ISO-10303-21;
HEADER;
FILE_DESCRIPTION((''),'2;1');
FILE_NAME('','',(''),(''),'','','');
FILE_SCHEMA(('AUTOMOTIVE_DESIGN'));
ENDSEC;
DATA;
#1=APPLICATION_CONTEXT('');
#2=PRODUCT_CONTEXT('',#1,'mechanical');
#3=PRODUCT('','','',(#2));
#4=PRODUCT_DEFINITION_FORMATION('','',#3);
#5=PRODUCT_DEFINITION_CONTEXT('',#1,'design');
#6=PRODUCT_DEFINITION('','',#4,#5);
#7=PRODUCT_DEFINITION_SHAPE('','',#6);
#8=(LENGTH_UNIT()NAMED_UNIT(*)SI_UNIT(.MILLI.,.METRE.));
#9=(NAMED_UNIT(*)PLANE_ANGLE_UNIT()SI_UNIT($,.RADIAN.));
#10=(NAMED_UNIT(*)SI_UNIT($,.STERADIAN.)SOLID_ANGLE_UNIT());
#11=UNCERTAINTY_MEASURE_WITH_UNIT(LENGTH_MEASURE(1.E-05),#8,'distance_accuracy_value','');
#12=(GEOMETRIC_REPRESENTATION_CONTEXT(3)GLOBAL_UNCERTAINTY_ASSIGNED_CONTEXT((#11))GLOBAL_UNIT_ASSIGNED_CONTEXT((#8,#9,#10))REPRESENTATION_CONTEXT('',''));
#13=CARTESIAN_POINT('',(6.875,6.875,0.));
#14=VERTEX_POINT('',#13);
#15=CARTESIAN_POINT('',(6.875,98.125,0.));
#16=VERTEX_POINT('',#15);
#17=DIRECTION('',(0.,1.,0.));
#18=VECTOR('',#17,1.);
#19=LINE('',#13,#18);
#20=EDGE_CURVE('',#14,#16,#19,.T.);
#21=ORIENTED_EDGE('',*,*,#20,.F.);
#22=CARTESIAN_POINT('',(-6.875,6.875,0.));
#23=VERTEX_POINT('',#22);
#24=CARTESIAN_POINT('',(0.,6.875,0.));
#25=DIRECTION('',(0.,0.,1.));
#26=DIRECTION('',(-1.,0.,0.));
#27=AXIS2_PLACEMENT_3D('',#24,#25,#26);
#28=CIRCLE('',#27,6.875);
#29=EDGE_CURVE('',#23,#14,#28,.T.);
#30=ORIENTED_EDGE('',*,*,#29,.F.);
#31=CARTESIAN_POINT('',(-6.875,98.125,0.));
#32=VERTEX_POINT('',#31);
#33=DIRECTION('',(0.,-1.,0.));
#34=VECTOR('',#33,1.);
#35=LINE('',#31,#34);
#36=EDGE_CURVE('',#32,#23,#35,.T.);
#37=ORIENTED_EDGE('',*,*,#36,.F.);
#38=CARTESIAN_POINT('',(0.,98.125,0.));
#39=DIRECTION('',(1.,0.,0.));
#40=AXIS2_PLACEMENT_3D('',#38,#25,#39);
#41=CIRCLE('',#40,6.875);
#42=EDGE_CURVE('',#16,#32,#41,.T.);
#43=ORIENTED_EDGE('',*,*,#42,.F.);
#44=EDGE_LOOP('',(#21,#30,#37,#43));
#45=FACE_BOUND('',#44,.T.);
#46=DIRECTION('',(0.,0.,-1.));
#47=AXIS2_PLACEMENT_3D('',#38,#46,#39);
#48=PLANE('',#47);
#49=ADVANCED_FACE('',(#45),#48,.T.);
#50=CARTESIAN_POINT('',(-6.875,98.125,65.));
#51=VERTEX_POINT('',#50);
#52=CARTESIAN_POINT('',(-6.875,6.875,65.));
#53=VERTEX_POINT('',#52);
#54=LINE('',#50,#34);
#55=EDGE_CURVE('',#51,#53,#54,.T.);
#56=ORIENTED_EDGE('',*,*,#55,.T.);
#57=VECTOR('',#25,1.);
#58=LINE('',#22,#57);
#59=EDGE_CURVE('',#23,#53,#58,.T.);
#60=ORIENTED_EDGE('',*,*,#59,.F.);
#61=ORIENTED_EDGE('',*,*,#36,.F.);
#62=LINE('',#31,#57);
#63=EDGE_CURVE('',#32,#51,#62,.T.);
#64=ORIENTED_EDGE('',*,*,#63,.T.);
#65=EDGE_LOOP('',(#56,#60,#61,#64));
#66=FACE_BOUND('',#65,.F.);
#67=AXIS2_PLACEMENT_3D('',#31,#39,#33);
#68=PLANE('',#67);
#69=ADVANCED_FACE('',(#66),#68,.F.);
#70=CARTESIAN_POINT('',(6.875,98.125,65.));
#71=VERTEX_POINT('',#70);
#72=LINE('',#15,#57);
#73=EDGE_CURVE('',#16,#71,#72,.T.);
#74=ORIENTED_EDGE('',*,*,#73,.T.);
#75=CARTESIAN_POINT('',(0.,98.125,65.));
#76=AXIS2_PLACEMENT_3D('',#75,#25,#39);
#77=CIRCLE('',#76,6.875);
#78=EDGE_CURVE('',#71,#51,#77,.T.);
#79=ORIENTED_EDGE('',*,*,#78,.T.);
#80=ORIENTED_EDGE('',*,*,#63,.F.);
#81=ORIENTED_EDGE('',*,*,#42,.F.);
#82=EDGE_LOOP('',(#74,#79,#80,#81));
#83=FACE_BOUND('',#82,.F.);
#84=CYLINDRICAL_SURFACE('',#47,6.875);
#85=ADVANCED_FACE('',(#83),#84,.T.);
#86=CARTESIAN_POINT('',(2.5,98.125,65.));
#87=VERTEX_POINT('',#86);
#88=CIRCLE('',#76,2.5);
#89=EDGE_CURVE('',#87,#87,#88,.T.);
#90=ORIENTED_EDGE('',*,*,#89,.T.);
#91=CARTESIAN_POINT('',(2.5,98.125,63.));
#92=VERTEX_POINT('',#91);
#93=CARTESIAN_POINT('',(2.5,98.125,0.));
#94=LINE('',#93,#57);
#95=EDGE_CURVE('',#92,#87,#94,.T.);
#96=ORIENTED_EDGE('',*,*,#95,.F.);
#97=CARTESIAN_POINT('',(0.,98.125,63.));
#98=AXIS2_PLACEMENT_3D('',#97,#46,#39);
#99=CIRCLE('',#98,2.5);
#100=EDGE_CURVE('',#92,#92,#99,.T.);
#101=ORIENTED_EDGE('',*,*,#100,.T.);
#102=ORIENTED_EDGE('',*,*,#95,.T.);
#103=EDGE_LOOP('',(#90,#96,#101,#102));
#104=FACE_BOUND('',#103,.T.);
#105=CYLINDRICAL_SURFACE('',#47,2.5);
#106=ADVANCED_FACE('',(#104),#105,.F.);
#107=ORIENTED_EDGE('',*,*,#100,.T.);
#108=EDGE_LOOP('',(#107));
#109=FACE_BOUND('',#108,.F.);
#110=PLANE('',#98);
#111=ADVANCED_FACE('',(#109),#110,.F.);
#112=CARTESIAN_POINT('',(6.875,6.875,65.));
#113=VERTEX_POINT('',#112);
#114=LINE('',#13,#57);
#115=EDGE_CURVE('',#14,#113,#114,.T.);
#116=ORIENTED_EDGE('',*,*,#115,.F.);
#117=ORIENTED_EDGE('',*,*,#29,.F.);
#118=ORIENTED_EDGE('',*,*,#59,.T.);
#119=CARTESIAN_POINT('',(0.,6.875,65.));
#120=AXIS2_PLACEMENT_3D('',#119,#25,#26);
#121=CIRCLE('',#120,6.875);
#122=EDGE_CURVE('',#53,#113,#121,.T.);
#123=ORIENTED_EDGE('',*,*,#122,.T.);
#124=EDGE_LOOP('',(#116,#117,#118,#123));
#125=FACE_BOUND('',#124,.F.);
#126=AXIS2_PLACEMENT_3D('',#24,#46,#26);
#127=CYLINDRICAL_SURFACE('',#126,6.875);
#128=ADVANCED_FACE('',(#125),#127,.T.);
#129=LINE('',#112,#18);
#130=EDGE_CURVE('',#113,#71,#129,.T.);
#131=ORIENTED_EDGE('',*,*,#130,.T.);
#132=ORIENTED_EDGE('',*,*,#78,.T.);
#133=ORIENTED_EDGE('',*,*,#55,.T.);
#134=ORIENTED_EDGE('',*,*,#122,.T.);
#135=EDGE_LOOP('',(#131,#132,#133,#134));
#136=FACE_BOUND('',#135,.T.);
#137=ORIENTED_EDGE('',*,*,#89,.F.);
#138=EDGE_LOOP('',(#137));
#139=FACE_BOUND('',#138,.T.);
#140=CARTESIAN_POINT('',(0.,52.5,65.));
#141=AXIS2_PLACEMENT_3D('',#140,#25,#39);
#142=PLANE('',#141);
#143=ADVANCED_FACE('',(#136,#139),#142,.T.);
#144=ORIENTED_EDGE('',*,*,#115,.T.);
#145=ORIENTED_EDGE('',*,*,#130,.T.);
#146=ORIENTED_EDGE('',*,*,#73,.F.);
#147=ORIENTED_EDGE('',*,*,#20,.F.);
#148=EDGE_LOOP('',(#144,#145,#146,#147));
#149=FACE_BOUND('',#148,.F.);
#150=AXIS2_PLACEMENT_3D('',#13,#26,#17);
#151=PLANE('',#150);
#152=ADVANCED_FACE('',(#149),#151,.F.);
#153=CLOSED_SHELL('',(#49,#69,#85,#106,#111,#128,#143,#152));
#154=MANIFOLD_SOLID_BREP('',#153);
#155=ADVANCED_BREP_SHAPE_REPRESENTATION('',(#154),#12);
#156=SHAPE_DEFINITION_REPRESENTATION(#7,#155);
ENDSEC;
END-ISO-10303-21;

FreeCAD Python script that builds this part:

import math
import FreeCAD as App
import Part
import Sketcher

V = App.Vector

doc = App.newDocument("Part")
params = doc.addObject("Spreadsheet::Sheet", "Params")
for row, (alias, value) in enumerate([
    ("sketch1_diameter", "5 mm"),
    ("sketch1_height", "91.25 mm"),
    ("pad1_length", "65 mm"),
    ("sketch2_diameter", "5 mm"),
    ("pad2_length", "63 mm"),
], start=1):
    params.set(f"A{row}", alias)
    params.set(f"B{row}", "=" + value)
    params.setAlias(f"B{row}", alias)

body = doc.addObject("PartDesign::Body", "Body")

# Sketch on XY plane
sketch1 = doc.addObject("Sketcher::SketchObject", "Sketch")
body.addObject(sketch1)
sketch1.AttachmentSupport = (doc.XY_Plane, [""])
sketch1.MapMode = "FlatFace"
sketch1.addGeometry([
    Part.ArcOfCircle(Part.Circle(V(0, 6.9, 0), V(0, 0, 1), 6.9), math.radians(180), math.radians(360)),  # 0
    Part.LineSegment(V(6.9, 6.9, 0), V(6.9, 98.1, 0)),  # 1
    Part.ArcOfCircle(Part.Circle(V(0, 98.1, 0), V(0, 0, 1), 6.9), math.radians(0), math.radians(180)),  # 2
    Part.LineSegment(V(-6.9, 98.1, 0), V(-6.9, 6.9, 0)),  # 3
    Part.Circle(V(0, 98.1, 0), V(0, 0, 1), 2.5),  # 4
], False)
sketch1.addConstraint([
    Sketcher.Constraint("Tangent", 0, 2, 1, 1),
    Sketcher.Constraint("Tangent", 1, 2, 2, 1),
    Sketcher.Constraint("Tangent", 2, 2, 3, 1),
    Sketcher.Constraint("Tangent", 3, 2, 0, 1),
    Sketcher.Constraint("Vertical", 1),
    Sketcher.Constraint("Vertical", 3),
    Sketcher.Constraint("Coincident", 4, 3, 2, 3),
    Sketcher.Constraint("PointOnObject", 0, 3, -2),
    Sketcher.Constraint("Diameter", 4, 5.0),
    Sketcher.Constraint("Radius", 0, 6.875),
    Sketcher.Constraint("DistanceY", 1, 1, 1, 2, 91.25),
    Sketcher.Constraint("DistanceY", -1, 1, 0, 3, 6.875),
])
sketch1.setExpression("Constraints[8]", "Params.sketch1_diameter")
sketch1.setExpression("Constraints[10]", "Params.sketch1_height")
pad1 = doc.addObject("PartDesign::Pad", "Pad")
body.addObject(pad1)
pad1.Profile = sketch1
pad1.setExpression("Length", "Params.pad1_length")

# Sketch on XY plane
sketch2 = doc.addObject("Sketcher::SketchObject", "Sketch001")
body.addObject(sketch2)
sketch2.AttachmentSupport = (doc.XY_Plane, [""])
sketch2.MapMode = "FlatFace"
sketch2.addGeometry(Part.Circle(V(0, 98.1, 0), V(0, 0, 1), 2.5), False)
sketch2.addConstraint([
    Sketcher.Constraint("PointOnObject", 0, 3, -2),
    Sketcher.Constraint("Diameter", 0, 5.0),
    Sketcher.Constraint("DistanceY", -1, 1, 0, 3, 98.125),
])
sketch2.setExpression("Constraints[1]", "Params.sketch2_diameter")
pad2 = doc.addObject("PartDesign::Pad", "Pad001")
body.addObject(pad2)
pad2.Profile = sketch2
pad2.setExpression("Length", "Params.pad2_length")

doc.recompute()
